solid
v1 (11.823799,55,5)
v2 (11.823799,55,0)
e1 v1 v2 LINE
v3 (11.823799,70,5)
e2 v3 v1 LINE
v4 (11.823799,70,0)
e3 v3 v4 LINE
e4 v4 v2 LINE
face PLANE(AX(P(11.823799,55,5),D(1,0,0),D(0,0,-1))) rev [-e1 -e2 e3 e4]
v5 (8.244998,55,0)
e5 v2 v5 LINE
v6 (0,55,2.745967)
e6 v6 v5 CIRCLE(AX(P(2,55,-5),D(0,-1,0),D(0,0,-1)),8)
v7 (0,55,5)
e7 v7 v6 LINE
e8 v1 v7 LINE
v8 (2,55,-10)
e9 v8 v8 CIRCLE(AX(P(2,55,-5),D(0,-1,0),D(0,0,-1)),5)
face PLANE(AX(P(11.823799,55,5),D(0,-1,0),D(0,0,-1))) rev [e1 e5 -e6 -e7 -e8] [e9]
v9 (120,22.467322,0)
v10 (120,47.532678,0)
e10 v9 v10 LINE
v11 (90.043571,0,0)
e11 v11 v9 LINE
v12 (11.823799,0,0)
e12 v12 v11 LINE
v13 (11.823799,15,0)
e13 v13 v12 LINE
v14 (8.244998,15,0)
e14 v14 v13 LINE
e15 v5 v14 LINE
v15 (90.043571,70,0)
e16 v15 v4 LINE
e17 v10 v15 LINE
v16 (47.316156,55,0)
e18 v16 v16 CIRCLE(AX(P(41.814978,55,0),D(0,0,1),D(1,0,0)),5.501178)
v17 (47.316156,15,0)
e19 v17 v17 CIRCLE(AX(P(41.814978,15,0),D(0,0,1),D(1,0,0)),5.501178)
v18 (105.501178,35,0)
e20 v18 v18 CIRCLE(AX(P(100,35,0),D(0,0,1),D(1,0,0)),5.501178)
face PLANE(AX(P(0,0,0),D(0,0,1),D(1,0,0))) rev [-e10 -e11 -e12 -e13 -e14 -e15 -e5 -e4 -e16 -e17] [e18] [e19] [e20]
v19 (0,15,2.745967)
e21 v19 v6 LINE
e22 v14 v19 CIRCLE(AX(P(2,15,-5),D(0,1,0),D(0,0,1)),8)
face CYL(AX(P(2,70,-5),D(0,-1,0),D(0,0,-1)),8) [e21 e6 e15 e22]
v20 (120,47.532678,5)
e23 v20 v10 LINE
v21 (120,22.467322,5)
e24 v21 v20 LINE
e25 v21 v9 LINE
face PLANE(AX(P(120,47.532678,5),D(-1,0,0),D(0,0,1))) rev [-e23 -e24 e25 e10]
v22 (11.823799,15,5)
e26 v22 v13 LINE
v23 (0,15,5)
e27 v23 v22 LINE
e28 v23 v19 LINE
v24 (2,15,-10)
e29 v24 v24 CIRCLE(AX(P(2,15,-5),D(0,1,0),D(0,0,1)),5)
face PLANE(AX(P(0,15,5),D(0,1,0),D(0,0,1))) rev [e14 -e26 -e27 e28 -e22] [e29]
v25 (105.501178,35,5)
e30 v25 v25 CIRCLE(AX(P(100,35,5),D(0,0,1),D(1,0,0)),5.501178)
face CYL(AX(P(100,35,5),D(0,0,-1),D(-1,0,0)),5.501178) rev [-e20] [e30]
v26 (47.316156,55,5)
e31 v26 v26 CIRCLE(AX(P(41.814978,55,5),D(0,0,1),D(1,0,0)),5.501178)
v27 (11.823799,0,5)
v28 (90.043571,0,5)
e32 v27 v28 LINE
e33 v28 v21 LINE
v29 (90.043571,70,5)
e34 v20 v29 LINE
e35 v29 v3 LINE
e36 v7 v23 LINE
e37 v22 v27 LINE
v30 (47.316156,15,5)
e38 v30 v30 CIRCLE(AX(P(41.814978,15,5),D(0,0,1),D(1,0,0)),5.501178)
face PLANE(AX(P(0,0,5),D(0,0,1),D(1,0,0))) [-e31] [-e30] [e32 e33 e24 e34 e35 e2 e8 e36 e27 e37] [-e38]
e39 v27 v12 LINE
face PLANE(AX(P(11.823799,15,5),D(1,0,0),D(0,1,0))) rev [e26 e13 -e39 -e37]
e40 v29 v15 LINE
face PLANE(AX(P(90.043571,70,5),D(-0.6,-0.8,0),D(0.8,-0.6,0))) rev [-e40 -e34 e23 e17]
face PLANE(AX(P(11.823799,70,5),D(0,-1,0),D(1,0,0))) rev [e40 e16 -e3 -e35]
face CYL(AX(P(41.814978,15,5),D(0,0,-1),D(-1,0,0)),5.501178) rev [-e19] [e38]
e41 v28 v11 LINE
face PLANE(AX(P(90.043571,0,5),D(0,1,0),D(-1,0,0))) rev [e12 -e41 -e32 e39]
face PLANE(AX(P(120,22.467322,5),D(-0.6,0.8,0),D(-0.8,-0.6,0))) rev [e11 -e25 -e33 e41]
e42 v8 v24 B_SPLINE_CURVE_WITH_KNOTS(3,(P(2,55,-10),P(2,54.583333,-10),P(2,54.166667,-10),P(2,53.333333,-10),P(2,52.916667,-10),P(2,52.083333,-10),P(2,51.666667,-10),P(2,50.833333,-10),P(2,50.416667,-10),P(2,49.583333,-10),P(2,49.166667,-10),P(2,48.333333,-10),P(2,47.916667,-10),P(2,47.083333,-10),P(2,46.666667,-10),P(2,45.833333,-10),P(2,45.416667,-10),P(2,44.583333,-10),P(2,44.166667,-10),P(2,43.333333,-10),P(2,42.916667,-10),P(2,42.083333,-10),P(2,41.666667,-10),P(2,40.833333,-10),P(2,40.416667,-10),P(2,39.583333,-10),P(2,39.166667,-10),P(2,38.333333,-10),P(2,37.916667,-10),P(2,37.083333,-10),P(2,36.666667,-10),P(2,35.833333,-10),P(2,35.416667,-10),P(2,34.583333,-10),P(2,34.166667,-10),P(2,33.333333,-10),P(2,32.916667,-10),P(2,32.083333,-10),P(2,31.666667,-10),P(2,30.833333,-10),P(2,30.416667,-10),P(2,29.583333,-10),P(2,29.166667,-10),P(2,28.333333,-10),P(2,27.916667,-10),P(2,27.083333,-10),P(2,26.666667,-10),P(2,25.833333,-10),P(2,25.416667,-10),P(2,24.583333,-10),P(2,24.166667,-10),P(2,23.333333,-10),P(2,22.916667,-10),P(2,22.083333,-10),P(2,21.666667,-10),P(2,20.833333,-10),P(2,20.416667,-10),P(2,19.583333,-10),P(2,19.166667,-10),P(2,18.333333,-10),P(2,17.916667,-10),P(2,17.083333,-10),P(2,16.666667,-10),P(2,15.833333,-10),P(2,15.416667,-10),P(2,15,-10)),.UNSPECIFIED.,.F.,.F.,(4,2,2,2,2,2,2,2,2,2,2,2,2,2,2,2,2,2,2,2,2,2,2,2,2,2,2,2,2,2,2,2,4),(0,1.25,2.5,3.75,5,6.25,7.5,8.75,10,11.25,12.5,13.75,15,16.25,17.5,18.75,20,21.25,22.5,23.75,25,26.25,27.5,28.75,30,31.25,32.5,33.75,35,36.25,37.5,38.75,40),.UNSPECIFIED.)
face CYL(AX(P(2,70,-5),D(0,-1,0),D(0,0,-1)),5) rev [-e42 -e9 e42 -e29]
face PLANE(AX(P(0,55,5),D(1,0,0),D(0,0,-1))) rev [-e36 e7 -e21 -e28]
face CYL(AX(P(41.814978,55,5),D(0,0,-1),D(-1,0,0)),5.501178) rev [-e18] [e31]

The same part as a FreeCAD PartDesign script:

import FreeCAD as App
import Part
import Sketcher
Q = App.Units.Quantity


def add_polygon(sketch, points):
    """Adds a closed chain of lines whose ends are joined by coincident constraints."""
    first, n = sketch.GeometryCount, len(points)
    for a, b in zip(points, points[1:] + points[:1]):
        sketch.addGeometry(Part.LineSegment(App.Vector(*a, 0), App.Vector(*b, 0)), False)
    for i in range(n):
        sketch.addConstraint(Sketcher.Constraint("Coincident", first + i, 2, first + (i + 1) % n, 1))

doc = App.newDocument("Part")
body = doc.addObject("PartDesign::Body", "Body")

sketch1 = body.newObject("Sketcher::SketchObject", "Sketch")
sketch1.AttachmentSupport = (doc.getObject("XY_Plane"), [""])
sketch1.MapMode = "FlatFace"
add_polygon(sketch1, [(0, 15), (12, 15), (12, 0), (90, 0), (120, 22), (120, 48), (90, 70), (12, 70), (12, 55), (0, 55)])
sketch1.addGeometry(Part.Circle(App.Vector(42, 15, 0), App.Vector(0, 0, 1), 6), False)
sketch1.addGeometry(Part.Circle(App.Vector(42, 55, 0), App.Vector(0, 0, 1), 6), False)
sketch1.addGeometry(Part.Circle(App.Vector(100, 35, 0), App.Vector(0, 0, 1), 6), False)
sketch1.addConstraint(Sketcher.Constraint("Horizontal", 0))
sketch1.addConstraint(Sketcher.Constraint("Vertical", 1))
sketch1.addConstraint(Sketcher.Constraint("Horizontal", 2))
sketch1.addConstraint(Sketcher.Constraint("Vertical", 4))
sketch1.addConstraint(Sketcher.Constraint("Horizontal", 6))
sketch1.addConstraint(Sketcher.Constraint("Vertical", 7))
sketch1.addConstraint(Sketcher.Constraint("Horizontal", 8))
sketch1.addConstraint(Sketcher.Constraint("Vertical", 9))
sketch1.addConstraint(Sketcher.Constraint("Equal", 10, 11))
sketch1.addConstraint(Sketcher.Constraint("Equal", 11, 12))
sketch1.addConstraint(Sketcher.Constraint("PointOnObject", 1, 2, -1))
sketch1.addConstraint(Sketcher.Constraint("PointOnObject", 8, 2, -2))
sketch1.addConstraint(Sketcher.Constraint("Horizontal", 10, 3, 0, 2))
sketch1.addConstraint(Sketcher.Constraint("Horizontal", 11, 3, 7, 2))
sketch1.addConstraint(Sketcher.Constraint("Vertical", 10, 3, 11, 3))
sketch1.addConstraint(Sketcher.Constraint("Vertical", 2, 2, 5, 2))
sketch1.addConstraint(Sketcher.Constraint("Vertical", 1, 2, 6, 2))
sketch1.addConstraint(Sketcher.Constraint("Equal", 1, 7))
sketch1.addConstraint(Sketcher.Constraint("Equal", 3, 5))
sketch1.addConstraint(Sketcher.Constraint("DistanceY", 1, 2, 1, 1, Q("15 mm")))
sketch1.addConstraint(Sketcher.Constraint("DistanceY", 9, 2, 9, 1, Q("40 mm")))
sketch1.addConstraint(Sketcher.Constraint("DistanceX", -1, 1, 12, 3, Q("100 mm")))
sketch1.addConstraint(Sketcher.Constraint("DistanceY", -1, 1, 12, 3, Q("35 mm")))
sketch1.addConstraint(Sketcher.Constraint("DistanceX", -1, 1, 3, 2, Q("120 mm")))
sketch1.addConstraint(Sketcher.Constraint("Diameter", 10, Q("11.002357 mm")))
sketch1.addConstraint(Sketcher.Constraint("DistanceX", 0, 1, 0, 2, Q("11.823799 mm")))
sketch1.addConstraint(Sketcher.Constraint("DistanceX", 2, 1, 2, 2, Q("78.219772 mm")))
sketch1.addConstraint(Sketcher.Constraint("DistanceY", 4, 1, 4, 2, Q("25.065356 mm")))
sketch1.addConstraint(Sketcher.Constraint("DistanceX", 0, 2, 10, 3, Q("29.991179 mm")))
pad1 = body.newObject("PartDesign::Pad", "Pad")
pad1.Profile = sketch1
pad1.Length = 5

sketch2 = body.newObject("Sketcher::SketchObject", "Sketch001")
sketch2.AttachmentSupport = (doc.getObject("XZ_Plane"), [""])
sketch2.MapMode = "FlatFace"
sketch2.addGeometry(Part.Circle(App.Vector(2, -5, 0), App.Vector(0, 0, 1), 8), False)
sketch2.addGeometry(Part.Circle(App.Vector(2, -5, 0), App.Vector(0, 0, 1), 5), False)
sketch2.addConstraint(Sketcher.Constraint("Coincident", 1, 3, 0, 3))
sketch2.addConstraint(Sketcher.Constraint("Diameter", 0, Q("16 mm")))
sketch2.addConstraint(Sketcher.Constraint("Diameter", 1, Q("10 mm")))
sketch2.addConstraint(Sketcher.Constraint("DistanceX", -1, 1, 0, 3, Q("2 mm")))
sketch2.addConstraint(Sketcher.Constraint("DistanceY", 0, 3, -1, 1, Q("5 mm")))
pad2 = body.newObject("PartDesign::Pad", "Pad001")
pad2.Profile = sketch2
pad2.Length = 70
pad2.Reversed = True

sketch3 = body.newObject("Sketcher::SketchObject", "Sketch002")
sketch3.AttachmentSupport = (doc.getObject("XY_Plane"), [""])
sketch3.MapMode = "FlatFace"
add_polygon(sketch3, [(-6, 70), (-6, 55), (12, 55), (12, 70)])
add_polygon(sketch3, [(-6, 15), (-6, 0), (12, 0), (12, 15)])
sketch3.addConstraint(Sketcher.Constraint("Vertical", 0))
sketch3.addConstraint(Sketcher.Constraint("Horizontal", 1))
sketch3.addConstraint(Sketcher.Constraint("Vertical", 2))
sketch3.addConstraint(Sketcher.Constraint("Horizontal", 3))
sketch3.addConstraint(Sketcher.Constraint("Vertical", 4))
sketch3.addConstraint(Sketcher.Constraint("Horizontal", 5))
sketch3.addConstraint(Sketcher.Constraint("Vertical", 6))
sketch3.addConstraint(Sketcher.Constraint("Horizontal", 7))
sketch3.addConstraint(Sketcher.Constraint("PointOnObject", 4, 2, -1))
sketch3.addConstraint(Sketcher.Constraint("Vertical", 3, 2, 4, 2))
sketch3.addConstraint(Sketcher.Constraint("Vertical", 2, 2, 5, 2))
sketch3.addConstraint(Sketcher.Constraint("Equal", 2, 4))
sketch3.addConstraint(Sketcher.Constraint("DistanceY", 0, 2, 0, 1, Q("15 mm")))
sketch3.addConstraint(Sketcher.Constraint("DistanceX", 0, 2, -1, 1, Q("6 mm")))
sketch3.addConstraint(Sketcher.Constraint("DistanceY", -1, 1, 0, 2, Q("55 mm")))
sketch3.addConstraint(Sketcher.Constraint("DistanceX", 1, 1, 1, 2, Q("17.823799 mm")))
pocket1 = body.newObject("PartDesign::Pocket", "Pocket")
pocket1.Profile = sketch3
pocket1.Type = "ThroughAll"
pocket1.Midplane = True

doc.recompute()
